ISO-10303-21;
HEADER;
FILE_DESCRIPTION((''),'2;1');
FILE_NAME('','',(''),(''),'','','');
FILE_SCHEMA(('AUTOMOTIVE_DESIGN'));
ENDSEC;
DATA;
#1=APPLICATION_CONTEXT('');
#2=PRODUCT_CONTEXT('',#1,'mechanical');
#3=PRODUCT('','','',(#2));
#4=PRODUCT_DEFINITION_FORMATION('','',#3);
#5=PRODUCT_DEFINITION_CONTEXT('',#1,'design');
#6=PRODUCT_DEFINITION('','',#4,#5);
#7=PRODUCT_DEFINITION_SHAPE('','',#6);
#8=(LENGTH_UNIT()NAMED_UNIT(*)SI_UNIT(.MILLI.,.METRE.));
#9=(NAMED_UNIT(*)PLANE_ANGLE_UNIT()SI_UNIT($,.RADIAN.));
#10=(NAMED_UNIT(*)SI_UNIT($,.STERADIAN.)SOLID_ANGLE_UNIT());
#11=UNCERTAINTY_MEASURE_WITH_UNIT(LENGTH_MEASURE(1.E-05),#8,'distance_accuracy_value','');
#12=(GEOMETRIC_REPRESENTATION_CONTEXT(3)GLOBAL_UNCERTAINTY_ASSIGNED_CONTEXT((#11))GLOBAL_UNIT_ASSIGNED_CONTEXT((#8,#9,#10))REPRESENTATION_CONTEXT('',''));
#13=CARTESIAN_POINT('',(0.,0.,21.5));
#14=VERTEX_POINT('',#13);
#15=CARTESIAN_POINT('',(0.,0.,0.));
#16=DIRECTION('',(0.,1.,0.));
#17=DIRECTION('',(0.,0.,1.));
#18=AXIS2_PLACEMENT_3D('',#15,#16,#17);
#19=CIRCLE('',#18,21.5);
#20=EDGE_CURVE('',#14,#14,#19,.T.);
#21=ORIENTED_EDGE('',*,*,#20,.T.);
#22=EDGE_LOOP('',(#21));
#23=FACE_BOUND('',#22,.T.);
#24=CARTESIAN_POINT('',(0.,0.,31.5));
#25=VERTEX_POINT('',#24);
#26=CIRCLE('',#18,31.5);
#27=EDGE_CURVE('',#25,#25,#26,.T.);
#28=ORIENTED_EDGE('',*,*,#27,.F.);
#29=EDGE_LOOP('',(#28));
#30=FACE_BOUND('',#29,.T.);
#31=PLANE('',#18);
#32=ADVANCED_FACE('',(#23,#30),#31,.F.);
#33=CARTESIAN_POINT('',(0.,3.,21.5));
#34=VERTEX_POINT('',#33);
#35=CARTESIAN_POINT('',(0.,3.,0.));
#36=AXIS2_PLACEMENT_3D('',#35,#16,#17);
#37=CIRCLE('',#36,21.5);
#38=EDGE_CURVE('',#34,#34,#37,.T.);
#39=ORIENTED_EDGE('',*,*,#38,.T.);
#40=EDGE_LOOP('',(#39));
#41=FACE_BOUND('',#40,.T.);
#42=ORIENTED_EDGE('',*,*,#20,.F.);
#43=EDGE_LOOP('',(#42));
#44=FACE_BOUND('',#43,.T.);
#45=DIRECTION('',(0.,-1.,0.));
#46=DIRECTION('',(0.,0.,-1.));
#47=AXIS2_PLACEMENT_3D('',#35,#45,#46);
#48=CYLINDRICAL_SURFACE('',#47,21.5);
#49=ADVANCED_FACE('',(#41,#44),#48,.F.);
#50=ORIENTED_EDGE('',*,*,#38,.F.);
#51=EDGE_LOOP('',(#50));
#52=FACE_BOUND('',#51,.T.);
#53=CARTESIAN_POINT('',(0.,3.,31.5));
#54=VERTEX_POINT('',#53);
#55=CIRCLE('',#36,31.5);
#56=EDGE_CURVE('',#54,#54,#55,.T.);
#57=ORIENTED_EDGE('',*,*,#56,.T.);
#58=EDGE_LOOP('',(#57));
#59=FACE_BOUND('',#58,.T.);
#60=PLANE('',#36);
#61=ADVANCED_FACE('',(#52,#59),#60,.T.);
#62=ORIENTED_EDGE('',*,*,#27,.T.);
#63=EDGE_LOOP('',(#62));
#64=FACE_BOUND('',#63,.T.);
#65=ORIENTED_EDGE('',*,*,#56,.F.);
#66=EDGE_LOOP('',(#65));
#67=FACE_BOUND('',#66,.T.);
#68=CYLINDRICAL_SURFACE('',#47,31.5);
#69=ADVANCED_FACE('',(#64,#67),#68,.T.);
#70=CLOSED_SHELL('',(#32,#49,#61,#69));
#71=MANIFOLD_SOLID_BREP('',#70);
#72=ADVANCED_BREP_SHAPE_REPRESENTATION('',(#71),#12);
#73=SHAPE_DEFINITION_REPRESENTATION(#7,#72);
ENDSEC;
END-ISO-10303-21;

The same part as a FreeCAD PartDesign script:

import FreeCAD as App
import Part
import Sketcher

V = App.Vector
Q = App.Units.Quantity

doc = App.newDocument("Part")
body = doc.addObject("PartDesign::Body", "Body")

sketch1 = body.newObject("Sketcher::SketchObject", "Sketch")
sketch1.AttachmentSupport = (doc.getObject("XZ_Plane"), [""])
sketch1.MapMode = "FlatFace"
sketch1.addGeometry([
    Part.Circle(V(0, 0, 0), V(0, 0, 1), 32),
    Part.Circle(V(0, 0, 0), V(0, 0, 1), 22),
], False)
sketch1.addConstraint([
    Sketcher.Constraint("Coincident", 0, 3, -1, 1),
    Sketcher.Constraint("Coincident", 1, 3, -1, 1),
    Sketcher.Constraint("Diameter", 0, Q("63 mm")),
    Sketcher.Constraint("Diameter", 1, Q("43 mm")),
])
pad1 = body.newObject("PartDesign::Pad", "Pad")
pad1.Profile = sketch1
pad1.Length = 3
pad1.Reversed = True

doc.recompute()
